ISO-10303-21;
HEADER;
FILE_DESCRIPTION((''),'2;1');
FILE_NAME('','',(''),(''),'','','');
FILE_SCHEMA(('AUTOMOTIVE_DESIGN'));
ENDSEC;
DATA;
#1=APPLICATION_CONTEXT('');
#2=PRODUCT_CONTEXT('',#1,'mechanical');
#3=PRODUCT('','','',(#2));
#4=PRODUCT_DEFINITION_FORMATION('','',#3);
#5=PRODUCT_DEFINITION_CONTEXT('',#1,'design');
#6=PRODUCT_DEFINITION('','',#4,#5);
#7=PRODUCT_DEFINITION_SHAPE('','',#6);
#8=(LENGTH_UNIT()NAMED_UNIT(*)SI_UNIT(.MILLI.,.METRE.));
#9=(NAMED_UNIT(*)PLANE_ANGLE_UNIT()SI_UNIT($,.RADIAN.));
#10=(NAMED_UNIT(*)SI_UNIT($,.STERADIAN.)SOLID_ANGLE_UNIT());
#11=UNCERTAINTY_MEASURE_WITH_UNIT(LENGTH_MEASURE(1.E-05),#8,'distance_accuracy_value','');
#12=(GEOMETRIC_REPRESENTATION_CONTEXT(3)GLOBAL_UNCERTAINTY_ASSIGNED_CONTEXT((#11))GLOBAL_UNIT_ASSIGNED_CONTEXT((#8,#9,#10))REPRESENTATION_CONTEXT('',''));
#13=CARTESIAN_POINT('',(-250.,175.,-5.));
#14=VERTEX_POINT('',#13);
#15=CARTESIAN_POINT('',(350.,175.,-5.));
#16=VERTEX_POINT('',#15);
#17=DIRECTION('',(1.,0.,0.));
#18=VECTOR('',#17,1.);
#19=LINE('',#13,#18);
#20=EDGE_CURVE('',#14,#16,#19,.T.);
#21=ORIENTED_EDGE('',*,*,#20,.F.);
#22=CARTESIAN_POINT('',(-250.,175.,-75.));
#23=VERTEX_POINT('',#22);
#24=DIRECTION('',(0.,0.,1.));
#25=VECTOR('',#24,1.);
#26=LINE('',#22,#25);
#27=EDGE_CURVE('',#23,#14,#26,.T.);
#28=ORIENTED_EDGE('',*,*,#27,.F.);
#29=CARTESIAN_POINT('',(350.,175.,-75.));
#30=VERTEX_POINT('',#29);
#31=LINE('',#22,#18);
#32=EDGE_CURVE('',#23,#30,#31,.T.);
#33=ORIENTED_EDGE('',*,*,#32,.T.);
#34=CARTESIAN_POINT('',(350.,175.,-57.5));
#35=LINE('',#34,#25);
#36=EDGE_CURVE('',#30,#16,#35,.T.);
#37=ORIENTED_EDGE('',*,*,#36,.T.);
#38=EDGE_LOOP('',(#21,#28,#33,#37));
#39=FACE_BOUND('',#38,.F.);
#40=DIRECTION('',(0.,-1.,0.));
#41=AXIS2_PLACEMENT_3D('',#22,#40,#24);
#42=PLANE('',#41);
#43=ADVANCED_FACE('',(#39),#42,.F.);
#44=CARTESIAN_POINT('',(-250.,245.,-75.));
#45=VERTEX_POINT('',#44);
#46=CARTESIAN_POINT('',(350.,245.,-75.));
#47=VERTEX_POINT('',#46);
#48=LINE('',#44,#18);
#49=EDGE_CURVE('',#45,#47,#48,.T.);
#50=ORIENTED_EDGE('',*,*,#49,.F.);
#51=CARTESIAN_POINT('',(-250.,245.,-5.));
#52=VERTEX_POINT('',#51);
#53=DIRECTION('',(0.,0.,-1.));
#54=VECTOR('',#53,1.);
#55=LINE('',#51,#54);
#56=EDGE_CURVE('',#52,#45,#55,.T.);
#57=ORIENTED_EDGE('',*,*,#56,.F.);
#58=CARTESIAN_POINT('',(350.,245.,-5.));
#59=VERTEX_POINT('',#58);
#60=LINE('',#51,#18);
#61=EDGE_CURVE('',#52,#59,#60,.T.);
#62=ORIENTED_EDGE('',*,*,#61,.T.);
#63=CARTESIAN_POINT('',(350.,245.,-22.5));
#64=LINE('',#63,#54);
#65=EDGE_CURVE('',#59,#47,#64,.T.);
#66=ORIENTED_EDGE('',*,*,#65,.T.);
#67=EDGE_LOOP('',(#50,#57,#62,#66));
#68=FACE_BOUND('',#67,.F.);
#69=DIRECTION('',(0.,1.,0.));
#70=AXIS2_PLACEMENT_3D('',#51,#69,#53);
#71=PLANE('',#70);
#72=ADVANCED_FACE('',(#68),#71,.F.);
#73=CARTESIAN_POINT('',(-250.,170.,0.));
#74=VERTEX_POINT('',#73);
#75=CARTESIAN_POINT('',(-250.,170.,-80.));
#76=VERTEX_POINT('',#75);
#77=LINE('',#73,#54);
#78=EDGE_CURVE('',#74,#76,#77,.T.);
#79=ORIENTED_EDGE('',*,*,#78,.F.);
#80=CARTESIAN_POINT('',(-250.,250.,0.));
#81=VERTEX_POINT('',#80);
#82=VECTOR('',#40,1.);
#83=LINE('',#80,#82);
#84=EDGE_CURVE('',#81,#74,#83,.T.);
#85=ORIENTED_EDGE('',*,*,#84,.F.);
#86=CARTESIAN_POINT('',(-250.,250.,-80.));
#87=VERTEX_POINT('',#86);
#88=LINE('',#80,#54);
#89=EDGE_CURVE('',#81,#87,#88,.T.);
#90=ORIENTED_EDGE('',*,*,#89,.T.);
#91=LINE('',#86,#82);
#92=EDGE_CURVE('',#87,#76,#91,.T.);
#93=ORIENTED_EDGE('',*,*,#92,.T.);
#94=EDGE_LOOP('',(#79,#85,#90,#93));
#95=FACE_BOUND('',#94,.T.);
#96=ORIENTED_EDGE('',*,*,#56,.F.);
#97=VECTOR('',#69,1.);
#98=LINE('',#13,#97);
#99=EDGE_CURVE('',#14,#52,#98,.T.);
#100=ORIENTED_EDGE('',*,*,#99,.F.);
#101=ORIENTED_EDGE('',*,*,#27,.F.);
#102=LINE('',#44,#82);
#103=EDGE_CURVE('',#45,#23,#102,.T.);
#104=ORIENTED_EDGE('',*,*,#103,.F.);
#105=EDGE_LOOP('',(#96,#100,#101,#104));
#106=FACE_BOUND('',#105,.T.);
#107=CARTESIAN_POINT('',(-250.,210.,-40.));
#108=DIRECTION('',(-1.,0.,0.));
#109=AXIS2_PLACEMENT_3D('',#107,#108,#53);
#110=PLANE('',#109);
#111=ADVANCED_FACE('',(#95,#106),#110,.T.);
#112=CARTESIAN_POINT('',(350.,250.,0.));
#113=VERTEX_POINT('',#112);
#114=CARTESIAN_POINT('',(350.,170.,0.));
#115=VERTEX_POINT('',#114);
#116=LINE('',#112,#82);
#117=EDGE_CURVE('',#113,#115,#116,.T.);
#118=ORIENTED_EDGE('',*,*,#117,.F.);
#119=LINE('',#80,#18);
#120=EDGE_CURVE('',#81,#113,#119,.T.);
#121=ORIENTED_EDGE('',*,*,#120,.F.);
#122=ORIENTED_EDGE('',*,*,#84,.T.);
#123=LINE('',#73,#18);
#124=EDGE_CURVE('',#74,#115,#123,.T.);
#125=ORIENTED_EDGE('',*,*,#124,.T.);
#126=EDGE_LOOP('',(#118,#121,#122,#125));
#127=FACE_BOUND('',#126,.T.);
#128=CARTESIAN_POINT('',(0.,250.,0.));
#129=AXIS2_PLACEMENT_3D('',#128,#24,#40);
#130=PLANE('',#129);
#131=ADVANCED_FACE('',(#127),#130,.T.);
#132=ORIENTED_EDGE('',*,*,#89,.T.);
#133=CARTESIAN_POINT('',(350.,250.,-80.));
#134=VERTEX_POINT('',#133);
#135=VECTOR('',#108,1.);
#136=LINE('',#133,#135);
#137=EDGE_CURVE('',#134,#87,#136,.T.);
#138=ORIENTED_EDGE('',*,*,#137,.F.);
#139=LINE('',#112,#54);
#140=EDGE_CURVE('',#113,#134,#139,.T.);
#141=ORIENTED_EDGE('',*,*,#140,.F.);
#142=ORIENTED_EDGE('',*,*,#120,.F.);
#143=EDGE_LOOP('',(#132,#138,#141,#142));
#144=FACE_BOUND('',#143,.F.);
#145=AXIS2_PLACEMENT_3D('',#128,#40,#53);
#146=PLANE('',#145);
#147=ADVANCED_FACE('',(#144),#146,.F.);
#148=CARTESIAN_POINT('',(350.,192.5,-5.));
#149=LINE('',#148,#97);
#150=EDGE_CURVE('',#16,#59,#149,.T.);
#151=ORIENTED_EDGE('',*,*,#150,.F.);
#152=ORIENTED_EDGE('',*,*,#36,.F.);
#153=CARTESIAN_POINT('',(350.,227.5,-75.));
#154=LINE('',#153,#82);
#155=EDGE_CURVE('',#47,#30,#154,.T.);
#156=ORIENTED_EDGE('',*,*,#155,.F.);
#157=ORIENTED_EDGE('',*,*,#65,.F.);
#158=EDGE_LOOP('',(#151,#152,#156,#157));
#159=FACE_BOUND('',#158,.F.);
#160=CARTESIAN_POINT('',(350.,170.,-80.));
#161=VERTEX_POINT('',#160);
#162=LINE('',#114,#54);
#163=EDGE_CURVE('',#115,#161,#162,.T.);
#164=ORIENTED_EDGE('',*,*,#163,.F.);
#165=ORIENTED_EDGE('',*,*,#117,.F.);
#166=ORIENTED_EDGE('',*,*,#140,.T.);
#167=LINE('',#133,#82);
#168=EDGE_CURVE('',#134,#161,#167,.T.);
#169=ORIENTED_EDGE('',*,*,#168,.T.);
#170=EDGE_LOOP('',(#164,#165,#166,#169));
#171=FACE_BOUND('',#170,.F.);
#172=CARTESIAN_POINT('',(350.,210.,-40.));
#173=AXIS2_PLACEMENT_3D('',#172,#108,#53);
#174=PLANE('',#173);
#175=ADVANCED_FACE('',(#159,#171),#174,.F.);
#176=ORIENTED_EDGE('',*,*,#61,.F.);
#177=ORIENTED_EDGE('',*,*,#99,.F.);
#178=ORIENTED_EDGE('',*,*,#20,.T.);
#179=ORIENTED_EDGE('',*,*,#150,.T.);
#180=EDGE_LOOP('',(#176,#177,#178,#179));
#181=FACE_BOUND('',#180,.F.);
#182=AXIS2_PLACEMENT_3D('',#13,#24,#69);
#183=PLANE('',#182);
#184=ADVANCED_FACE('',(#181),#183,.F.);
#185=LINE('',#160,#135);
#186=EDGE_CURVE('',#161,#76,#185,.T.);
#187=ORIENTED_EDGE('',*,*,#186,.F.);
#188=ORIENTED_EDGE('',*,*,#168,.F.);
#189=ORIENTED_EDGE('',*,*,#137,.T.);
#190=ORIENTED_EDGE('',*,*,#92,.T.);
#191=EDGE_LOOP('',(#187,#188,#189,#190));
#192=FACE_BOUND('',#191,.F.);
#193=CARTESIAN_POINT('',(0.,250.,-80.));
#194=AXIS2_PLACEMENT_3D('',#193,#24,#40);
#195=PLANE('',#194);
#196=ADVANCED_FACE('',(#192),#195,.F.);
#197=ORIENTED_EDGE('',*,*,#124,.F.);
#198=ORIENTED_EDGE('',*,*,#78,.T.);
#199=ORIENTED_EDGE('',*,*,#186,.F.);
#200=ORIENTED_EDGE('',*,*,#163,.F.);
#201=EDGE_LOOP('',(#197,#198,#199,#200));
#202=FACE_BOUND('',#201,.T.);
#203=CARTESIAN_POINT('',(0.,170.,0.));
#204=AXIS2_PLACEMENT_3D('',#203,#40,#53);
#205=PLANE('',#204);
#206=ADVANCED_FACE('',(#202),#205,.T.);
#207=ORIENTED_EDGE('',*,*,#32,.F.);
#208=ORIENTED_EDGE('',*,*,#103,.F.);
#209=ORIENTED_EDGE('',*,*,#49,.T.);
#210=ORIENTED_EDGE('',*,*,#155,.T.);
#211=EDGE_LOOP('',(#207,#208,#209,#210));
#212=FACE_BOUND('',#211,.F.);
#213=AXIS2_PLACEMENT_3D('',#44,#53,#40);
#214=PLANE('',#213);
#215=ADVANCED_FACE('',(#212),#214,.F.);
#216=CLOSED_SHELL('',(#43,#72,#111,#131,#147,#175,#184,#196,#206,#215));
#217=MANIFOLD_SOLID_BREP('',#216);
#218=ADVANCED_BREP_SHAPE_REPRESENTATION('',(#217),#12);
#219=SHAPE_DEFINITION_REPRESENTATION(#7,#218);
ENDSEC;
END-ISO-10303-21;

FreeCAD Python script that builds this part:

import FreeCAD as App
import Part
import Sketcher
Q = App.Units.Quantity


def add_polygon(sketch, points):
    """Adds a closed chain of lines whose ends are joined by coincident constraints."""
    first, n = sketch.GeometryCount, len(points)
    for a, b in zip(points, points[1:] + points[:1]):
        sketch.addGeometry(Part.LineSegment(App.Vector(*a, 0), App.Vector(*b, 0)), False)
    for i in range(n):
        sketch.addConstraint(Sketcher.Constraint("Coincident", first + i, 2, first + (i + 1) % n, 1))

doc = App.newDocument("Part")
body = doc.addObject("PartDesign::Body", "Body")

sketch1 = body.newObject("Sketcher::SketchObject", "Sketch")
sketch1.AttachmentSupport = (doc.getObject("YZ_Plane"), [""])
sketch1.MapMode = "FlatFace"
add_polygon(sketch1, [(250, -80), (250, 0), (170, 0), (170, -80)])
sketch1.addConstraint(Sketcher.Constraint("Vertical", 0))
sketch1.addConstraint(Sketcher.Constraint("Horizontal", 1))
sketch1.addConstraint(Sketcher.Constraint("Vertical", 2))
sketch1.addConstraint(Sketcher.Constraint("Horizontal", 3))
sketch1.addConstraint(Sketcher.Constraint("PointOnObject", 0, 2, -1))
sketch1.addConstraint(Sketcher.Constraint("Equal", 3, 0))
sketch1.addConstraint(Sketcher.Constraint("DistanceX", 1, 2, 1, 1, Q("80 mm")))
sketch1.addConstraint(Sketcher.Constraint("DistanceX", -1, 1, 0, 2, Q("250 mm")))
pad1 = body.newObject("PartDesign::Pad", "Pad")
pad1.Profile = sketch1
pad1.Type = "TwoLengths"
pad1.Length = 250
pad1.Length2 = 350
pad1.Reversed = True

sketch2 = body.newObject("Sketcher::SketchObject", "Sketch001")
sketch2.AttachmentSupport = (doc.getObject("YZ_Plane"), [""])
sketch2.MapMode = "FlatFace"
sketch2.AttachmentOffset = App.Placement(App.Vector(0, 0, -250), App.Rotation())
add_polygon(sketch2, [(175, -5), (245, -5), (245, -75), (175, -75)])
sketch2.addConstraint(Sketcher.Constraint("Horizontal", 0))
sketch2.addConstraint(Sketcher.Constraint("Vertical", 1))
sketch2.addConstraint(Sketcher.Constraint("Horizontal", 2))
sketch2.addConstraint(Sketcher.Constraint("Vertical", 3))
sketch2.addConstraint(Sketcher.Constraint("Equal", 2, 1))
sketch2.addConstraint(Sketcher.Constraint("DistanceX", 0, 1, 0, 2, Q("70 mm")))
sketch2.addConstraint(Sketcher.Constraint("DistanceX", -1, 1, 0, 2, Q("245 mm")))
sketch2.addConstraint(Sketcher.Constraint("DistanceY", 0, 2, -1, 1, Q("5 mm")))
pocket1 = body.newObject("PartDesign::Pocket", "Pocket")
pocket1.Profile = sketch2
pocket1.Type = "ThroughAll"
pocket1.Reversed = True

doc.recompute()
